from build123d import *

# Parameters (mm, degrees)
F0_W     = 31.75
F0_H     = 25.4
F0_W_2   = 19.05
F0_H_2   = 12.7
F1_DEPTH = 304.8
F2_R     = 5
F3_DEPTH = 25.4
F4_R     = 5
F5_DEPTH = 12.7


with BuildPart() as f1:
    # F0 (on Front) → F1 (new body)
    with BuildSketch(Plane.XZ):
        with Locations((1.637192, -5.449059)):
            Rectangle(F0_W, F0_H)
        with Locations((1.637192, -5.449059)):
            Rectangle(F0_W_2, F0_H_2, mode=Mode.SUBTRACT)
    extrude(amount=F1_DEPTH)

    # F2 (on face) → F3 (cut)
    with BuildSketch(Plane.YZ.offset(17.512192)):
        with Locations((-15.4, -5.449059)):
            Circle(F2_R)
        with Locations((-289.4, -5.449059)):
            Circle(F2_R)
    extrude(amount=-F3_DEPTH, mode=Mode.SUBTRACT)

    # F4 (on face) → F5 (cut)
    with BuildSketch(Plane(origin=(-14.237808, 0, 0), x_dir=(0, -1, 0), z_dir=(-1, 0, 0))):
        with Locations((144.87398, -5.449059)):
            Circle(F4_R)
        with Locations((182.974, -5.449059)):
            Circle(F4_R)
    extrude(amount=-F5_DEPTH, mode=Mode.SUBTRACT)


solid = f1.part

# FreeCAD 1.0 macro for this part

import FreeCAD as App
import Part
import Sketcher
from FreeCAD import Vector
Q = App.Units.Quantity

doc = App.newDocument("Part")
params = doc.addObject("Spreadsheet::Sheet", "Params")
for row, (alias, value) in enumerate([
    ("sketch1_height", "1 in"),
    ("sketch1_height2", "0.5 in"),
    ("sketch1_width", "1.25 in"),
    ("pad1_length", "12 in"),
    ("pocket1_length", "1 in"),
    ("pocket2_length", "0.5 in"),
], start=1):
    params.set(f"A{row}", alias)
    params.set(f"B{row}", "=" + value)
    params.setAlias(f"B{row}", alias)

body = doc.addObject("PartDesign::Body", "Body")

# Sketch on XZ plane
sketch1 = body.newObject("Sketcher::SketchObject", "Sketch")
sketch1.AttachmentSupport = (doc.getObject("XZ_Plane"), [""])
sketch1.MapMode = "FlatFace"
sketch1.addGeometry(Part.LineSegment(Vector(-14, 7, 0), Vector(-14, -18, 0)), False)
sketch1.addGeometry(Part.LineSegment(Vector(-14, -18, 0), Vector(18, -18, 0)), False)
sketch1.addGeometry(Part.LineSegment(Vector(18, -18, 0), Vector(18, 7, 0)), False)
sketch1.addGeometry(Part.LineSegment(Vector(18, 7, 0), Vector(-14, 7, 0)), False)
sketch1.addGeometry(Part.LineSegment(Vector(11, -12, 0), Vector(-8, -12, 0)), False)
sketch1.addGeometry(Part.LineSegment(Vector(-8, -12, 0), Vector(-8, 1, 0)), False)
sketch1.addGeometry(Part.LineSegment(Vector(-8, 1, 0), Vector(11, 1, 0)), False)
sketch1.addGeometry(Part.LineSegment(Vector(11, 1, 0), Vector(11, -12, 0)), False)
sketch1.addConstraint(Sketcher.Constraint("Coincident", 0, 2, 1, 1))
sketch1.addConstraint(Sketcher.Constraint("Coincident", 1, 2, 2, 1))
sketch1.addConstraint(Sketcher.Constraint("Coincident", 2, 2, 3, 1))
sketch1.addConstraint(Sketcher.Constraint("Coincident", 3, 2, 0, 1))
sketch1.addConstraint(Sketcher.Constraint("Coincident", 4, 2, 5, 1))
sketch1.addConstraint(Sketcher.Constraint("Coincident", 5, 2, 6, 1))
sketch1.addConstraint(Sketcher.Constraint("Coincident", 6, 2, 7, 1))
sketch1.addConstraint(Sketcher.Constraint("Coincident", 7, 2, 4, 1))
sketch1.addConstraint(Sketcher.Constraint("Vertical", 0))
sketch1.addConstraint(Sketcher.Constraint("Horizontal", 1))
sketch1.addConstraint(Sketcher.Constraint("Vertical", 2))
sketch1.addConstraint(Sketcher.Constraint("Horizontal", 3))
sketch1.addConstraint(Sketcher.Constraint("Horizontal", 4))
sketch1.addConstraint(Sketcher.Constraint("Vertical", 5))
sketch1.addConstraint(Sketcher.Constraint("Horizontal", 6))
sketch1.addConstraint(Sketcher.Constraint("Vertical", 7))
sketch1.addConstraint(Sketcher.Constraint("DistanceY", 0, 2, 0, 1, Q("1 in")))
sketch1.addConstraint(Sketcher.Constraint("DistanceY", 5, 1, 5, 2, Q("0.5 in")))
sketch1.addConstraint(Sketcher.Constraint("DistanceX", 4, 2, 1, 2, Q("1 in")))
sketch1.addConstraint(Sketcher.Constraint("DistanceX", 3, 2, 6, 2, Q("1 in")))
sketch1.addConstraint(Sketcher.Constraint("DistanceX", 1, 1, 1, 2, Q("1.25 in")))
sketch1.addConstraint(Sketcher.Constraint("DistanceY", 0, 2, 4, 2, Q("0.25 in")))
sketch1.addConstraint(Sketcher.Constraint("DistanceY", 0, 2, -1, 1, 18.149059))
sketch1.addConstraint(Sketcher.Constraint("DistanceX", -1, 1, 1, 2, 17.512192))
sketch1.setExpression("Constraints[16]", "Params.sketch1_height")
sketch1.setExpression("Constraints[17]", "Params.sketch1_height2")
sketch1.setExpression("Constraints[20]", "Params.sketch1_width")
pad1 = body.newObject("PartDesign::Pad", "Pad")
pad1.Profile = sketch1
pad1.setExpression("Length", "Params.pad1_length")

# Sketch on YZ plane
sketch2 = body.newObject("Sketcher::SketchObject", "Sketch001")
sketch2.AttachmentSupport = (doc.getObject("YZ_Plane"), [""])
sketch2.MapMode = "FlatFace"
sketch2.AttachmentOffset = App.Placement(Vector(0, 0, 17.512192), App.Rotation())
sketch2.addGeometry(Part.Circle(Vector(-15, -5, 0), Vector(0, 0, 1), 5), False)
sketch2.addGeometry(Part.Circle(Vector(-289, -5, 0), Vector(0, 0, 1), 5), False)
sketch2.addConstraint(Sketcher.Constraint("Equal", 0, 1))
sketch2.addConstraint(Sketcher.Constraint("Horizontal", 0, 3, 1, 3))
sketch2.addConstraint(Sketcher.Constraint("Diameter", 0, 10.0))
sketch2.addConstraint(Sketcher.Constraint("DistanceX", 0, 3, -1, 1, 15.4))
sketch2.addConstraint(Sketcher.Constraint("DistanceX", 1, 3, -1, 1, 289.4))
sketch2.addConstraint(Sketcher.Constraint("DistanceY", 0, 3, -1, 1, 5.449059))
pocket1 = body.newObject("PartDesign::Pocket", "Pocket")
pocket1.Profile = sketch2
pocket1.setExpression("Length", "Params.pocket1_length")

# Sketch on YZ plane
sketch3 = body.newObject("Sketcher::SketchObject", "Sketch002")
sketch3.AttachmentSupport = (doc.getObject("YZ_Plane"), [""])
sketch3.MapMode = "FlatFace"
sketch3.AttachmentOffset = App.Placement(Vector(0, 0, -14.237808), App.Rotation())
sketch3.addGeometry(Part.Circle(Vector(-145, -5, 0), Vector(0, 0, 1), 5), False)
sketch3.addGeometry(Part.Circle(Vector(-183, -5, 0), Vector(0, 0, 1), 5), False)
sketch3.addConstraint(Sketcher.Constraint("Equal", 0, 1))
sketch3.addConstraint(Sketcher.Constraint("Horizontal", 0, 3, 1, 3))
sketch3.addConstraint(Sketcher.Constraint("Diameter", 0, 10.0))
sketch3.addConstraint(Sketcher.Constraint("DistanceX", 0, 3, -1, 1, Q("5.7037 in")))
sketch3.addConstraint(Sketcher.Constraint("DistanceX", 1, 3, -1, 1, 182.974))
sketch3.addConstraint(Sketcher.Constraint("DistanceY", 0, 3, -1, 1, 5.449059))
pocket2 = body.newObject("PartDesign::Pocket", "Pocket001")
pocket2.Profile = sketch3
pocket2.setExpression("Length", "Params.pocket2_length")
pocket2.Reversed = True

doc.recompute()
